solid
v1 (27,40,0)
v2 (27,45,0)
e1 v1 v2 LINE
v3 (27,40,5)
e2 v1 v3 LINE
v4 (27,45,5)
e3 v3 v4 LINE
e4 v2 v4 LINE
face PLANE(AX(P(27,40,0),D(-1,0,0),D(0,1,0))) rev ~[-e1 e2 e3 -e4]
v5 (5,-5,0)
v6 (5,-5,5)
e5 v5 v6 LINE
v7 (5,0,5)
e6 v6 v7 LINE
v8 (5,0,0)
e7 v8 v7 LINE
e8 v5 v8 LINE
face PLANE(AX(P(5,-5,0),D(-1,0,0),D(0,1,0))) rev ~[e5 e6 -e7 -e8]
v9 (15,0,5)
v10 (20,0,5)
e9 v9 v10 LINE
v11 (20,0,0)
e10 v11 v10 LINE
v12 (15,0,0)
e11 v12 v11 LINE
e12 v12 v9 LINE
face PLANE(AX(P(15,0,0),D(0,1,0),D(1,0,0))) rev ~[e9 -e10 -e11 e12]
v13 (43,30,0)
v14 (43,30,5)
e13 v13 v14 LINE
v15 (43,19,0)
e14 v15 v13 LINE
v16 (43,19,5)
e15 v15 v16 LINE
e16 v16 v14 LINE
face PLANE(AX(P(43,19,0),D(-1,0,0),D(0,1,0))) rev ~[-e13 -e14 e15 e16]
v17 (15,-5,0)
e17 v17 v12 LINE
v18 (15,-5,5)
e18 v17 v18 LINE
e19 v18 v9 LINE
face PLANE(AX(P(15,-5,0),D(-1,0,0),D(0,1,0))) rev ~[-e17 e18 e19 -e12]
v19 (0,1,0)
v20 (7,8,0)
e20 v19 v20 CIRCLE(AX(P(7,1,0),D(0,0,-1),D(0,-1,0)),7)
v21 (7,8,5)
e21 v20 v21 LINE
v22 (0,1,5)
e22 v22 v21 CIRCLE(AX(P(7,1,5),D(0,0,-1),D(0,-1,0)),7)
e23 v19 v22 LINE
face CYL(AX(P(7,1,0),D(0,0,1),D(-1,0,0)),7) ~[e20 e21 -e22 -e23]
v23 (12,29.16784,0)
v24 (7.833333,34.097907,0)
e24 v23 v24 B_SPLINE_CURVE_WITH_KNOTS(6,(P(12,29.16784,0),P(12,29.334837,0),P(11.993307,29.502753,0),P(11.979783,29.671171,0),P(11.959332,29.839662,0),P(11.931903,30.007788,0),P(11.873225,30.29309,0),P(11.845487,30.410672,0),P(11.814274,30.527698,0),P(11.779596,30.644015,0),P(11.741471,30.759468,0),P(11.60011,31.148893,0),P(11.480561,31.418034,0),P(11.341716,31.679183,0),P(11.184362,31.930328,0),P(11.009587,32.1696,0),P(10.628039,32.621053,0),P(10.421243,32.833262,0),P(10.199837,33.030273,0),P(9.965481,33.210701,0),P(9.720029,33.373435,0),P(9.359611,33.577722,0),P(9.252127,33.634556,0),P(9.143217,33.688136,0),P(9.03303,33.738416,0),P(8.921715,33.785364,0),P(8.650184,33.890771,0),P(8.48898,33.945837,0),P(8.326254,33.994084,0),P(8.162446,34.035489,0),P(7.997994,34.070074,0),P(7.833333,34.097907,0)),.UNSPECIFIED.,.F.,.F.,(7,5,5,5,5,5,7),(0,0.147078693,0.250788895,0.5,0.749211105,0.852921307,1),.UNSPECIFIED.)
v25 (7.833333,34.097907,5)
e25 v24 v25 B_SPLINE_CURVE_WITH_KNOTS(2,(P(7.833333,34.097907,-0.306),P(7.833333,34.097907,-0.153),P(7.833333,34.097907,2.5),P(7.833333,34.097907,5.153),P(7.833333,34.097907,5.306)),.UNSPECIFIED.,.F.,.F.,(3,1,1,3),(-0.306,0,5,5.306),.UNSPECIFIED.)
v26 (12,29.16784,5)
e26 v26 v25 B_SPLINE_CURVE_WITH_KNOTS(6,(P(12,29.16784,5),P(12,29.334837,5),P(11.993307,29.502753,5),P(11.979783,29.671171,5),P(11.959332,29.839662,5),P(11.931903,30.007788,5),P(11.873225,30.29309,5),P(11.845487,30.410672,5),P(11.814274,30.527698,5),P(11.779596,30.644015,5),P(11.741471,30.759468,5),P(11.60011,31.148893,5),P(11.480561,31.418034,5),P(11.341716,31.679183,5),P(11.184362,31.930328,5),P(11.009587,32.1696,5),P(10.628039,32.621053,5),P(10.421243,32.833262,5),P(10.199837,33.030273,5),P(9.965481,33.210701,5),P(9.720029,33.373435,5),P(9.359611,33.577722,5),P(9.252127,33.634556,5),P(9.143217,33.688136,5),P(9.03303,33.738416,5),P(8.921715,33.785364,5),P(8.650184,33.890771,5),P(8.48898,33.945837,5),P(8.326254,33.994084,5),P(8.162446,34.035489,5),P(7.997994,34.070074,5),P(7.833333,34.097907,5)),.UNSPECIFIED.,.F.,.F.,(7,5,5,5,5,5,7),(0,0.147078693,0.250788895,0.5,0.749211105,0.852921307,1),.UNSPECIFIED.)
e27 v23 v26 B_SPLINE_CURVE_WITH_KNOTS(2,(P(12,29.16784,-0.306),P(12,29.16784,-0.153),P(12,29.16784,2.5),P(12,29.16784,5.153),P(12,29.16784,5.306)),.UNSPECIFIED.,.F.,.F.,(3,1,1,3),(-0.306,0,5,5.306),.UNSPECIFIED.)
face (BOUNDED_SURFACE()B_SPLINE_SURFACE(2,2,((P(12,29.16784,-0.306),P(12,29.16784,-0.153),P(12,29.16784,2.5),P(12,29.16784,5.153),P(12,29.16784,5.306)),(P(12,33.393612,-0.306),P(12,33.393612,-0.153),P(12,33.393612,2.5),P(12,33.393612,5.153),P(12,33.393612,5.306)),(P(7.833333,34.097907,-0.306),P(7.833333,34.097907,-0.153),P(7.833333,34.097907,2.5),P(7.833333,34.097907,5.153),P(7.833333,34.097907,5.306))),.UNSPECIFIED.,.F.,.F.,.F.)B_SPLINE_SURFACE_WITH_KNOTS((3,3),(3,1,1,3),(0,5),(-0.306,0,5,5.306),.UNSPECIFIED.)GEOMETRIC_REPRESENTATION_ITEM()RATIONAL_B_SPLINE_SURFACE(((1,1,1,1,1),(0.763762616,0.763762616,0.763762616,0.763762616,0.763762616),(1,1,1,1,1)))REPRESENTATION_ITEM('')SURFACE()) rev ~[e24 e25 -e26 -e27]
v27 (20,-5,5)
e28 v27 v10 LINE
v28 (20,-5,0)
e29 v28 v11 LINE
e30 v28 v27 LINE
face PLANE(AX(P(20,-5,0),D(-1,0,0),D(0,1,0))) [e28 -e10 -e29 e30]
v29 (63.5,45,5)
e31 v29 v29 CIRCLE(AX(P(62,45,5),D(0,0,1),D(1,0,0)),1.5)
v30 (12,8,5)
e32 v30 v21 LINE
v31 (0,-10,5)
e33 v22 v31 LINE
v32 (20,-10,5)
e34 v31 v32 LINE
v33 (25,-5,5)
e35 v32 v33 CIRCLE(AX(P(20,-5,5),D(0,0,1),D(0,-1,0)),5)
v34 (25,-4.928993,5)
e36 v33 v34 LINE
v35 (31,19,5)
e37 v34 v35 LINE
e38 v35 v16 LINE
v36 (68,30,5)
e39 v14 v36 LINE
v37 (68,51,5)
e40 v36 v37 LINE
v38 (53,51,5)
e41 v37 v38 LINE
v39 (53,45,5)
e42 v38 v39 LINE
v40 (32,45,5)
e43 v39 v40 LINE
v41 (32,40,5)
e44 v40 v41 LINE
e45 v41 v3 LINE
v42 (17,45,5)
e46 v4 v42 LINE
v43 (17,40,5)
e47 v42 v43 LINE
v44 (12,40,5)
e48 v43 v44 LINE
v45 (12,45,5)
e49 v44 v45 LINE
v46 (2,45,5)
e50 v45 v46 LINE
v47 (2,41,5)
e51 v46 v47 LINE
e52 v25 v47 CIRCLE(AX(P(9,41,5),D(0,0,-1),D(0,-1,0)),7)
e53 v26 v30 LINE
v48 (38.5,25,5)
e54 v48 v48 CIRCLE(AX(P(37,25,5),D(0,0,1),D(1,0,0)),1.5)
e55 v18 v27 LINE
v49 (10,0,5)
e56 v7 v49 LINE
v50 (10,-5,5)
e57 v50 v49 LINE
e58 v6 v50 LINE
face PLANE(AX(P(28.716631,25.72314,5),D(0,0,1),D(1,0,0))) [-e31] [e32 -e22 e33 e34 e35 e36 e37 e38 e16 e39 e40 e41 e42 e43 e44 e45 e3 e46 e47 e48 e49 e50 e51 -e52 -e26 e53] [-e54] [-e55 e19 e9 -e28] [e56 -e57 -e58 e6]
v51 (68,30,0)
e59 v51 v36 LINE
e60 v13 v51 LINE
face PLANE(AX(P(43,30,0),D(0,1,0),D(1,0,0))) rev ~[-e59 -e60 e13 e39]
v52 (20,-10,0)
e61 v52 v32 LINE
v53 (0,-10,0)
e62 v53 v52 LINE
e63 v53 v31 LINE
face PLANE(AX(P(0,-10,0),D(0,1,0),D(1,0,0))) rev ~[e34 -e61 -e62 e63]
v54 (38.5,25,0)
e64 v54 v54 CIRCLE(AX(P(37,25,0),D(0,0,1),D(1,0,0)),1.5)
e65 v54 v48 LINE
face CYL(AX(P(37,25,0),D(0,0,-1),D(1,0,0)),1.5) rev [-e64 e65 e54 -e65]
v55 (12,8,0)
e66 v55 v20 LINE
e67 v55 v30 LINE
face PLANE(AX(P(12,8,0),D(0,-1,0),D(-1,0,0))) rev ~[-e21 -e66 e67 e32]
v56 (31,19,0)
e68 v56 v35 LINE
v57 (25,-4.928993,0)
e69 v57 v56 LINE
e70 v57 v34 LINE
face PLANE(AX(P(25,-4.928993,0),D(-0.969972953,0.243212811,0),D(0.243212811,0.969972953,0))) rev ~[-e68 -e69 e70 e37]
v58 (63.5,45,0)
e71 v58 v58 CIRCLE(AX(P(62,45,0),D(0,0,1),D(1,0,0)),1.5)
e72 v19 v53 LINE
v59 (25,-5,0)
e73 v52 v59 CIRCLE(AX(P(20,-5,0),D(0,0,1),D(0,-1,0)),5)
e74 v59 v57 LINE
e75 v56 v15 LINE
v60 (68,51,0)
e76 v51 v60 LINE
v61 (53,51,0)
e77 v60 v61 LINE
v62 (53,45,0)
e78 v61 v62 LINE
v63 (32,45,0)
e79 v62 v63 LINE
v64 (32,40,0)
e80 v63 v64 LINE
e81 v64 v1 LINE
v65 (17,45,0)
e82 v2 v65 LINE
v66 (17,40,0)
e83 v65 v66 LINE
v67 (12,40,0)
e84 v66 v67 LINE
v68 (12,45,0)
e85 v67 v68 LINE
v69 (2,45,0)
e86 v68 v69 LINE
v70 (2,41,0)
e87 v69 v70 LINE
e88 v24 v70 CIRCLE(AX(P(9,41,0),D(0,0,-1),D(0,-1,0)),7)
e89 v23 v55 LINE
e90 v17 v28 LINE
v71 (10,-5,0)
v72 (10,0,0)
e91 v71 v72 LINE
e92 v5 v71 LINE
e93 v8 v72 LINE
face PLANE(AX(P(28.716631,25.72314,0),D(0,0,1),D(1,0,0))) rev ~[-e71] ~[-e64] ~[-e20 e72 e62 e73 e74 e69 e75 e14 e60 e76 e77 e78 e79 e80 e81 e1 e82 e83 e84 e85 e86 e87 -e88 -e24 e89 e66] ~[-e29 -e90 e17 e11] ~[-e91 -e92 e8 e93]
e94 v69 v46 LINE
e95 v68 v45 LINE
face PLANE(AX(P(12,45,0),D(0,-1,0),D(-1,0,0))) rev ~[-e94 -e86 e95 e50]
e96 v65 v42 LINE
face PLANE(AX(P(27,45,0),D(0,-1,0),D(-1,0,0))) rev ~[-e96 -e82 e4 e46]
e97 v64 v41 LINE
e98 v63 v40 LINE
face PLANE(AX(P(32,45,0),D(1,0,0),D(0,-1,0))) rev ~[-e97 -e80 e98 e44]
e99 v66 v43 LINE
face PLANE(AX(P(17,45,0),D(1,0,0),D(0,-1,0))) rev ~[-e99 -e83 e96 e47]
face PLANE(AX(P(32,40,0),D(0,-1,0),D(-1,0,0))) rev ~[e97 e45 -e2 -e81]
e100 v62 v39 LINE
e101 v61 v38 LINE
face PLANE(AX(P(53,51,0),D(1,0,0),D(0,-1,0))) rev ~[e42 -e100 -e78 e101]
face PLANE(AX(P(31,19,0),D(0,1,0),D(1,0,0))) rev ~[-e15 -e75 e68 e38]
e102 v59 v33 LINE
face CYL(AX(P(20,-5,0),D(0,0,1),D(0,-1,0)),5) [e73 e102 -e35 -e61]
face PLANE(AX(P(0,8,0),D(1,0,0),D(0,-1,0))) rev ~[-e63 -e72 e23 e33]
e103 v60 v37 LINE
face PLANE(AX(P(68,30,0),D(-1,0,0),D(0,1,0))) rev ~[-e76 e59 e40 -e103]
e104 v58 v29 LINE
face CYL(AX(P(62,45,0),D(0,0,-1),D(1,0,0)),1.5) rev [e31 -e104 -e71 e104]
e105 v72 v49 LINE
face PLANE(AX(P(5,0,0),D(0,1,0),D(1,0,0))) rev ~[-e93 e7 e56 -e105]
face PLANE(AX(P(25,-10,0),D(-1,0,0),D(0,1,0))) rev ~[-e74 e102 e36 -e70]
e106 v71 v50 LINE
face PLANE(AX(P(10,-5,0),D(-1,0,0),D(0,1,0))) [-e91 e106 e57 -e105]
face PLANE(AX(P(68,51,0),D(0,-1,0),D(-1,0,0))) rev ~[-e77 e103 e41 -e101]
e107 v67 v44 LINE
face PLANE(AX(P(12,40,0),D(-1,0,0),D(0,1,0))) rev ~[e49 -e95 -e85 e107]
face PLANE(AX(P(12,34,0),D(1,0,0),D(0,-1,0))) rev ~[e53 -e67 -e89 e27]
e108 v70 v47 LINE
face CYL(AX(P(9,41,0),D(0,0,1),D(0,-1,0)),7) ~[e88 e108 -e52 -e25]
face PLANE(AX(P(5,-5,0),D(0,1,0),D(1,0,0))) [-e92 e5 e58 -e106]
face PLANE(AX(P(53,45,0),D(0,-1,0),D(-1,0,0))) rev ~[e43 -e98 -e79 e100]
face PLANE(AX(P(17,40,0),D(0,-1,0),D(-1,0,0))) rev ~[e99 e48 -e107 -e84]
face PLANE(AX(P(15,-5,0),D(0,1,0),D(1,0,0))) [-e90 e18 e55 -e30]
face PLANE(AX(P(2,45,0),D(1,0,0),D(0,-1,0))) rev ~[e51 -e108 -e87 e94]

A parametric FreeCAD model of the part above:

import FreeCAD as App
import Part
import Sketcher
Q = App.Units.Quantity


def edges_at(feature, points):
    """Names of the edges that pass closest to the given points."""
    edges = feature.Shape.Edges
    near = lambda p: min(range(len(edges)), key=lambda i: edges[i].distToShape(Part.Vertex(*p))[0])
    return sorted({f"Edge{near(p) + 1}" for p in points})


def add_polygon(sketch, points):
    """Adds a closed chain of lines whose ends are joined by coincident constraints."""
    first, n = sketch.GeometryCount, len(points)
    for a, b in zip(points, points[1:] + points[:1]):
        sketch.addGeometry(Part.LineSegment(App.Vector(*a, 0), App.Vector(*b, 0)), False)
    for i in range(n):
        sketch.addConstraint(Sketcher.Constraint("Coincident", first + i, 2, first + (i + 1) % n, 1))

doc = App.newDocument("Part")
body = doc.addObject("PartDesign::Body", "Body")

# Sketch on XY plane
sketch1 = body.newObject("Sketcher::SketchObject", "Sketch")
sketch1.AttachmentSupport = (doc.getObject("XY_Plane"), [""])
sketch1.MapMode = "FlatFace"
add_polygon(sketch1, [(31, 19), (43, 19), (43, 30), (68, 30), (68, 51), (53, 51), (53, 45), (32, 45), (32, 40), (27, 40), (27, 45), (17, 45), (17, 40), (12, 40), (12, 45), (2, 45), (2, 34), (12, 34), (12, 8), (0, 8), (0, -10), (25, -10), (25, -4.928993)])  # lines 0-22
add_polygon(sketch1, [(10, -5), (5, -5), (5, 0), (10, 0)])  # lines 23-26
add_polygon(sketch1, [(20, -5), (15, -5), (15, 0), (20, 0)])  # lines 27-30
sketch1.addGeometry(Part.Circle(App.Vector(37, 25, 0), App.Vector(0, 0, 1), 1.5), False)  # 31
sketch1.addGeometry(Part.Circle(App.Vector(62, 45, 0), App.Vector(0, 0, 1), 1.5), False)  # 32
sketch1.addConstraint(Sketcher.Constraint("Horizontal", 0))
sketch1.addConstraint(Sketcher.Constraint("Vertical", 1))
sketch1.addConstraint(Sketcher.Constraint("Horizontal", 2))
sketch1.addConstraint(Sketcher.Constraint("Vertical", 3))
sketch1.addConstraint(Sketcher.Constraint("Horizontal", 4))
sketch1.addConstraint(Sketcher.Constraint("Vertical", 5))
sketch1.addConstraint(Sketcher.Constraint("Horizontal", 6))
sketch1.addConstraint(Sketcher.Constraint("Vertical", 7))
sketch1.addConstraint(Sketcher.Constraint("Horizontal", 8))
sketch1.addConstraint(Sketcher.Constraint("Vertical", 9))
sketch1.addConstraint(Sketcher.Constraint("Horizontal", 10))
sketch1.addConstraint(Sketcher.Constraint("Vertical", 11))
sketch1.addConstraint(Sketcher.Constraint("Horizontal", 12))
sketch1.addConstraint(Sketcher.Constraint("Vertical", 13))
sketch1.addConstraint(Sketcher.Constraint("Horizontal", 14))
sketch1.addConstraint(Sketcher.Constraint("Vertical", 15))
sketch1.addConstraint(Sketcher.Constraint("Horizontal", 16))
sketch1.addConstraint(Sketcher.Constraint("Vertical", 17))
sketch1.addConstraint(Sketcher.Constraint("Horizontal", 18))
sketch1.addConstraint(Sketcher.Constraint("Vertical", 19))
sketch1.addConstraint(Sketcher.Constraint("Horizontal", 20))
sketch1.addConstraint(Sketcher.Constraint("Vertical", 21))
sketch1.addConstraint(Sketcher.Constraint("Horizontal", 23))
sketch1.addConstraint(Sketcher.Constraint("Vertical", 24))
sketch1.addConstraint(Sketcher.Constraint("Horizontal", 25))
sketch1.addConstraint(Sketcher.Constraint("Vertical", 26))
sketch1.addConstraint(Sketcher.Constraint("Horizontal", 27))
sketch1.addConstraint(Sketcher.Constraint("Vertical", 28))
sketch1.addConstraint(Sketcher.Constraint("Horizontal", 29))
sketch1.addConstraint(Sketcher.Constraint("Vertical", 30))
sketch1.addConstraint(Sketcher.Constraint("Equal", 31, 32))
sketch1.addConstraint(Sketcher.Constraint("PointOnObject", 18, 2, -2))
sketch1.addConstraint(Sketcher.Constraint("PointOnObject", 24, 2, -1))
sketch1.addConstraint(Sketcher.Constraint("PointOnObject", 28, 2, -1))
sketch1.addConstraint(Sketcher.Constraint("Horizontal", 32, 3, 5, 2))
sketch1.addConstraint(Sketcher.Constraint("Horizontal", 6, 2, 9, 2))
sketch1.addConstraint(Sketcher.Constraint("Horizontal", 8, 2, 11, 2))
sketch1.addConstraint(Sketcher.Constraint("Horizontal", 10, 2, 13, 2))
sketch1.addConstraint(Sketcher.Constraint("Horizontal", 26, 2, 27, 2))
sketch1.addConstraint(Sketcher.Constraint("Vertical", 13, 2, 16, 2))
sketch1.addConstraint(Sketcher.Constraint("Equal", 8, 12))
sketch1.addConstraint(Sketcher.Constraint("Equal", 10, 14))
sketch1.addConstraint(Sketcher.Constraint("Equal", 0, 18))
sketch1.addConstraint(Sketcher.Constraint("Equal", 2, 20))
sketch1.addConstraint(Sketcher.Constraint("Equal", 12, 23))
sketch1.addConstraint(Sketcher.Constraint("Equal", 25, 27))
sketch1.addConstraint(Sketcher.Constraint("Equal", 6, 3))
sketch1.addConstraint(Sketcher.Constraint("Equal", 29, 7))
sketch1.addConstraint(Sketcher.Constraint("Equal", 1, 15))
sketch1.addConstraint(Sketcher.Constraint("Equal", 13, 24))
sketch1.addConstraint(Sketcher.Constraint("Diameter", 31, Q("3 mm")))
sketch1.addConstraint(Sketcher.Constraint("DistanceX", 0, 1, 0, 2, Q("12 mm")))
sketch1.addConstraint(Sketcher.Constraint("DistanceX", 2, 1, 2, 2, Q("25 mm")))
sketch1.addConstraint(Sketcher.Constraint("DistanceX", 4, 2, 4, 1, Q("15 mm")))
sketch1.addConstraint(Sketcher.Constraint("DistanceX", 6, 2, 6, 1, Q("21 mm")))
sketch1.addConstraint(Sketcher.Constraint("DistanceX", 8, 2, 8, 1, Q("5 mm")))
sketch1.addConstraint(Sketcher.Constraint("DistanceX", 10, 2, 10, 1, Q("10 mm")))
sketch1.addConstraint(Sketcher.Constraint("DistanceY", 1, 1, 1, 2, Q("11 mm")))
sketch1.addConstraint(Sketcher.Constraint("DistanceY", 5, 2, 5, 1, Q("6 mm")))
sketch1.addConstraint(Sketcher.Constraint("DistanceY", 17, 2, 17, 1, Q("26 mm")))
sketch1.addConstraint(Sketcher.Constraint("DistanceY", 19, 2, 19, 1, Q("18 mm")))
sketch1.addConstraint(Sketcher.Constraint("DistanceX", -1, 1, 31, 3, Q("37 mm")))
sketch1.addConstraint(Sketcher.Constraint("DistanceY", -1, 1, 31, 3, Q("25 mm")))
sketch1.addConstraint(Sketcher.Constraint("DistanceX", -1, 1, 32, 3, Q("62 mm")))
sketch1.addConstraint(Sketcher.Constraint("DistanceY", -1, 1, 32, 3, Q("45 mm")))
sketch1.addConstraint(Sketcher.Constraint("DistanceX", -1, 1, 23, 2, Q("5 mm")))
sketch1.addConstraint(Sketcher.Constraint("DistanceX", -1, 1, 27, 2, Q("15 mm")))
sketch1.addConstraint(Sketcher.Constraint("DistanceY", 21, 1, 21, 2, Q("5.071007 mm")))
pad1 = body.newObject("PartDesign::Pad", "Pad")
pad1.Profile = sketch1
pad1.Length = 5
doc.recompute()

fillet = body.newObject("PartDesign::Fillet", "Fillet")
fillet.Base = (pad1, edges_at(pad1, [(0, 8, 2.5), (2, 34, 2.5)]))
fillet.Radius = 7
doc.recompute()

fillet2 = body.newObject("PartDesign::Fillet", "Fillet001")
fillet2.Base = (fillet, edges_at(fillet, [(12, 34, 2.5)]))
fillet2.Radius = 5
doc.recompute()

fillet3 = body.newObject("PartDesign::Fillet", "Fillet002")
fillet3.Base = (fillet2, edges_at(fillet2, [(25, -10, 2.5)]))
fillet3.Radius = 5

doc.recompute()
